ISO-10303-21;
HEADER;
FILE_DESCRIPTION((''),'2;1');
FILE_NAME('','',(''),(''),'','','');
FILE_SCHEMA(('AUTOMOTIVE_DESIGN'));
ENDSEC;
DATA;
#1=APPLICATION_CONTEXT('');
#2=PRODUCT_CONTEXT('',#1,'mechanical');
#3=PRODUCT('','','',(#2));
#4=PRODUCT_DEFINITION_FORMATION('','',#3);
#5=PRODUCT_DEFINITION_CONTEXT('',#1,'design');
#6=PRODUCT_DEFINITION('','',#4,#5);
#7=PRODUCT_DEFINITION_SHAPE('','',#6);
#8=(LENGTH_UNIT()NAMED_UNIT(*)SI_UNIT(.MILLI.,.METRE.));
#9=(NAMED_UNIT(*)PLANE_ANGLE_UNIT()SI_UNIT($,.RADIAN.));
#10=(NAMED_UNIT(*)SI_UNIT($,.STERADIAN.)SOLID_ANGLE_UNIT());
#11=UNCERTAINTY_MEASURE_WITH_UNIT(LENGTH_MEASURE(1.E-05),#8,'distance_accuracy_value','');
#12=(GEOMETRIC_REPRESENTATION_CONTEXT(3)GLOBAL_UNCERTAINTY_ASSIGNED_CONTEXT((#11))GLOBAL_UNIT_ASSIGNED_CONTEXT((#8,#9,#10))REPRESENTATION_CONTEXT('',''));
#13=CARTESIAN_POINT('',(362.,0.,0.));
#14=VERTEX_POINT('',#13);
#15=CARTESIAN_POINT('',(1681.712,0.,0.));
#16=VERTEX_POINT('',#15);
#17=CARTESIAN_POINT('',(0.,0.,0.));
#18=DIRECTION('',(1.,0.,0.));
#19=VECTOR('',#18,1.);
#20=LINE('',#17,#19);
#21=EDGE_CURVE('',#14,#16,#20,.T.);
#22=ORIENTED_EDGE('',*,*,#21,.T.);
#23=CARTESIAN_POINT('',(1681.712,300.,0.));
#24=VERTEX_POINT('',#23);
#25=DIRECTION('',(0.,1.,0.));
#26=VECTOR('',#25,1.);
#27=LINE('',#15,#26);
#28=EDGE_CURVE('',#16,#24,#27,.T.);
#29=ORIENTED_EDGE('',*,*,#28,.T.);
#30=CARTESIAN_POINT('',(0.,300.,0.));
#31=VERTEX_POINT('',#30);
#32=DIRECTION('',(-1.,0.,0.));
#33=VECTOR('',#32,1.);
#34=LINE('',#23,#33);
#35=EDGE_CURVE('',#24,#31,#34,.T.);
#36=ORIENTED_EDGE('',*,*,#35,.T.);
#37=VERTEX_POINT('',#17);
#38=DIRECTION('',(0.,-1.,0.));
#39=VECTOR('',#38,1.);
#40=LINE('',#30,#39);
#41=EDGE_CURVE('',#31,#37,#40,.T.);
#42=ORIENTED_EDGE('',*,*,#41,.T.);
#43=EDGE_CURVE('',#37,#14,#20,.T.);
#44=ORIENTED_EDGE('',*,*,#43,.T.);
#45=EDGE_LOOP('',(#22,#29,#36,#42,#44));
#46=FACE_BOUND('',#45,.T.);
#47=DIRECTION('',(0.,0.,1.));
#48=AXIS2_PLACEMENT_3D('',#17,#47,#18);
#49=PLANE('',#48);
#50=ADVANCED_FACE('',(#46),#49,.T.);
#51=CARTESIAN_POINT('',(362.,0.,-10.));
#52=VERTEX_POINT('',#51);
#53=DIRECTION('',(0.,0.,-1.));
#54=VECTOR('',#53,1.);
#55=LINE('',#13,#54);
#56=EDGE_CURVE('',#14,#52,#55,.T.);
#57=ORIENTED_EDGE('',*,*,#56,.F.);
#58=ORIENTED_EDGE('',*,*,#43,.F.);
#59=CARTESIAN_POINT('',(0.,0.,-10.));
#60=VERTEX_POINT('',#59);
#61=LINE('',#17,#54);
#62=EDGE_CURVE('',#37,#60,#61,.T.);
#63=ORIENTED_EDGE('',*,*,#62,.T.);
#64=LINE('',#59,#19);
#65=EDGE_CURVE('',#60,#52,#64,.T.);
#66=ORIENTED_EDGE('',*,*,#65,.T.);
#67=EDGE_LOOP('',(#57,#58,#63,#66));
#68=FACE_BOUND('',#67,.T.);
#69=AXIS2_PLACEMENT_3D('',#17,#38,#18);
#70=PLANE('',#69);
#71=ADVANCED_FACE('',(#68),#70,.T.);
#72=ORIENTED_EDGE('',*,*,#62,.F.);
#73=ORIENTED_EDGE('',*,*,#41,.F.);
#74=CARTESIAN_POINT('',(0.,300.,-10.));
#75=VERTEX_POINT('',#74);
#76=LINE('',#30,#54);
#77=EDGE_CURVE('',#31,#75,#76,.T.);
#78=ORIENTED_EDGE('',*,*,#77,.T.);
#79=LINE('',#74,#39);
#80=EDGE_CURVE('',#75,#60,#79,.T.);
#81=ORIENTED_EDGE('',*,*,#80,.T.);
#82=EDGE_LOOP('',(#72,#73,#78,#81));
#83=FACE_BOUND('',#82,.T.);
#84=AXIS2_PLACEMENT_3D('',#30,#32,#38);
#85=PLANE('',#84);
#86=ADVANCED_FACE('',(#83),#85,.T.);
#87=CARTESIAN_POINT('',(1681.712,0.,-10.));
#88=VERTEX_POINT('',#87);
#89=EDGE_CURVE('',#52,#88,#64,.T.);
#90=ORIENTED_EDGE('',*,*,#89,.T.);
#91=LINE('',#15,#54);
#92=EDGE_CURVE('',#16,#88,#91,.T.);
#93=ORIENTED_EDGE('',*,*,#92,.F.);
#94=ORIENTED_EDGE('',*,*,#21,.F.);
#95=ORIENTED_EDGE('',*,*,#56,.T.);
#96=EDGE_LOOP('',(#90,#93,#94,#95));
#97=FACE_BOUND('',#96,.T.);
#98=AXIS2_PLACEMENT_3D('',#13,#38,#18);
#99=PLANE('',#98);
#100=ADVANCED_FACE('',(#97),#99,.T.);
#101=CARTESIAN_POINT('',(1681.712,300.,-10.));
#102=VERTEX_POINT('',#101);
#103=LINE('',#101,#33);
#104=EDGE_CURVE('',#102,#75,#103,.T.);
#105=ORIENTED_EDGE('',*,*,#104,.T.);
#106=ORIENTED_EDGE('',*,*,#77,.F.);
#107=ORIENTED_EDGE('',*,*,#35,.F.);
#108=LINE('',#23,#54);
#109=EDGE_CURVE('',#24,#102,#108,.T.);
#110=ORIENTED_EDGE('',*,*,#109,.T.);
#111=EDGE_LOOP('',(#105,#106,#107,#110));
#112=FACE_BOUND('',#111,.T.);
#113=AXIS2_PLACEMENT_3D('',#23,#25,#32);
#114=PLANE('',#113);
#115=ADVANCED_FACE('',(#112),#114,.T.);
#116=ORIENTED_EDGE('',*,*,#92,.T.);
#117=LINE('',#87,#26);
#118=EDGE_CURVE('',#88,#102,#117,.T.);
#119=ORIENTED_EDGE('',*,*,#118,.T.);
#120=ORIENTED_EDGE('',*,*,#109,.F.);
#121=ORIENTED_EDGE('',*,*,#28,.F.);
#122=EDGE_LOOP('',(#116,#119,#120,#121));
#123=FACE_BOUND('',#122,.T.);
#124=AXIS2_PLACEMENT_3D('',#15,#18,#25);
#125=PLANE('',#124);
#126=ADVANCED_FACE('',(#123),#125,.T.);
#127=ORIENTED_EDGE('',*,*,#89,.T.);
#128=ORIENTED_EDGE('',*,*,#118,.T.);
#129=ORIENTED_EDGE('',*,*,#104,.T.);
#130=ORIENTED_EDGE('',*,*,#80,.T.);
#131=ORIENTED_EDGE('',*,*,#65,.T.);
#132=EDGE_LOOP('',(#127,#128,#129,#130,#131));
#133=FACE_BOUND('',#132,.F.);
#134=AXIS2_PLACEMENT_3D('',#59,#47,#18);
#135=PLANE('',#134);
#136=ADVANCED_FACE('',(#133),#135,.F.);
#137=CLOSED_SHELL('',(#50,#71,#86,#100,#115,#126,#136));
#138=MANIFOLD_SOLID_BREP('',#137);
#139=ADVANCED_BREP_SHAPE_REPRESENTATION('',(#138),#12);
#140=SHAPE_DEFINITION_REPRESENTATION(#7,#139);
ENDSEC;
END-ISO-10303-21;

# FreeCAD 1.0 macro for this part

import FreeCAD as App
import Part
import Sketcher

V = App.Vector

doc = App.newDocument("Part")
params = doc.addObject("Spreadsheet::Sheet", "Params")
for row, (alias, value) in enumerate([
    ("sketch1_height", "300 mm"),
    ("pad1_length", "10 mm"),
], start=1):
    params.set(f"A{row}", alias)
    params.set(f"B{row}", "=" + value)
    params.setAlias(f"B{row}", alias)

body = doc.addObject("PartDesign::Body", "Body")

# Sketch on XY plane
sketch1 = doc.addObject("Sketcher::SketchObject", "Sketch")
body.addObject(sketch1)
sketch1.AttachmentSupport = (doc.XY_Plane, [""])
sketch1.MapMode = "FlatFace"
sketch1.addGeometry(Part.LineSegment(V(0, 0, 0), V(1682, 0, 0)), False)
sketch1.addGeometry(Part.LineSegment(V(1682, 0, 0), V(1682, 300, 0)), False)
sketch1.addGeometry(Part.LineSegment(V(1682, 300, 0), V(0, 300, 0)), False)
sketch1.addGeometry(Part.LineSegment(V(0, 300, 0), V(0, 0, 0)), False)
sketch1.addConstraint(Sketcher.Constraint("Coincident", 0, 2, 1, 1))
sketch1.addConstraint(Sketcher.Constraint("Coincident", 1, 2, 2, 1))
sketch1.addConstraint(Sketcher.Constraint("Coincident", 2, 2, 3, 1))
sketch1.addConstraint(Sketcher.Constraint("Coincident", 3, 2, 0, 1))
sketch1.addConstraint(Sketcher.Constraint("Horizontal", 0))
sketch1.addConstraint(Sketcher.Constraint("Vertical", 1))
sketch1.addConstraint(Sketcher.Constraint("Horizontal", 2))
sketch1.addConstraint(Sketcher.Constraint("Vertical", 3))
sketch1.addConstraint(Sketcher.Constraint("Coincident", 3, 2, -1, 1))
sketch1.addConstraint(Sketcher.Constraint("DistanceY", 1, 1, 1, 2, 300.0))
sketch1.addConstraint(Sketcher.Constraint("DistanceX", 0, 1, 0, 2, 1681.712))
sketch1.setExpression("Constraints[9]", "Params.sketch1_height")
pad1 = doc.addObject("PartDesign::Pad", "Pad")
body.addObject(pad1)
pad1.Profile = sketch1
pad1.setExpression("Length", "Params.pad1_length")
pad1.Reversed = True

doc.recompute()
